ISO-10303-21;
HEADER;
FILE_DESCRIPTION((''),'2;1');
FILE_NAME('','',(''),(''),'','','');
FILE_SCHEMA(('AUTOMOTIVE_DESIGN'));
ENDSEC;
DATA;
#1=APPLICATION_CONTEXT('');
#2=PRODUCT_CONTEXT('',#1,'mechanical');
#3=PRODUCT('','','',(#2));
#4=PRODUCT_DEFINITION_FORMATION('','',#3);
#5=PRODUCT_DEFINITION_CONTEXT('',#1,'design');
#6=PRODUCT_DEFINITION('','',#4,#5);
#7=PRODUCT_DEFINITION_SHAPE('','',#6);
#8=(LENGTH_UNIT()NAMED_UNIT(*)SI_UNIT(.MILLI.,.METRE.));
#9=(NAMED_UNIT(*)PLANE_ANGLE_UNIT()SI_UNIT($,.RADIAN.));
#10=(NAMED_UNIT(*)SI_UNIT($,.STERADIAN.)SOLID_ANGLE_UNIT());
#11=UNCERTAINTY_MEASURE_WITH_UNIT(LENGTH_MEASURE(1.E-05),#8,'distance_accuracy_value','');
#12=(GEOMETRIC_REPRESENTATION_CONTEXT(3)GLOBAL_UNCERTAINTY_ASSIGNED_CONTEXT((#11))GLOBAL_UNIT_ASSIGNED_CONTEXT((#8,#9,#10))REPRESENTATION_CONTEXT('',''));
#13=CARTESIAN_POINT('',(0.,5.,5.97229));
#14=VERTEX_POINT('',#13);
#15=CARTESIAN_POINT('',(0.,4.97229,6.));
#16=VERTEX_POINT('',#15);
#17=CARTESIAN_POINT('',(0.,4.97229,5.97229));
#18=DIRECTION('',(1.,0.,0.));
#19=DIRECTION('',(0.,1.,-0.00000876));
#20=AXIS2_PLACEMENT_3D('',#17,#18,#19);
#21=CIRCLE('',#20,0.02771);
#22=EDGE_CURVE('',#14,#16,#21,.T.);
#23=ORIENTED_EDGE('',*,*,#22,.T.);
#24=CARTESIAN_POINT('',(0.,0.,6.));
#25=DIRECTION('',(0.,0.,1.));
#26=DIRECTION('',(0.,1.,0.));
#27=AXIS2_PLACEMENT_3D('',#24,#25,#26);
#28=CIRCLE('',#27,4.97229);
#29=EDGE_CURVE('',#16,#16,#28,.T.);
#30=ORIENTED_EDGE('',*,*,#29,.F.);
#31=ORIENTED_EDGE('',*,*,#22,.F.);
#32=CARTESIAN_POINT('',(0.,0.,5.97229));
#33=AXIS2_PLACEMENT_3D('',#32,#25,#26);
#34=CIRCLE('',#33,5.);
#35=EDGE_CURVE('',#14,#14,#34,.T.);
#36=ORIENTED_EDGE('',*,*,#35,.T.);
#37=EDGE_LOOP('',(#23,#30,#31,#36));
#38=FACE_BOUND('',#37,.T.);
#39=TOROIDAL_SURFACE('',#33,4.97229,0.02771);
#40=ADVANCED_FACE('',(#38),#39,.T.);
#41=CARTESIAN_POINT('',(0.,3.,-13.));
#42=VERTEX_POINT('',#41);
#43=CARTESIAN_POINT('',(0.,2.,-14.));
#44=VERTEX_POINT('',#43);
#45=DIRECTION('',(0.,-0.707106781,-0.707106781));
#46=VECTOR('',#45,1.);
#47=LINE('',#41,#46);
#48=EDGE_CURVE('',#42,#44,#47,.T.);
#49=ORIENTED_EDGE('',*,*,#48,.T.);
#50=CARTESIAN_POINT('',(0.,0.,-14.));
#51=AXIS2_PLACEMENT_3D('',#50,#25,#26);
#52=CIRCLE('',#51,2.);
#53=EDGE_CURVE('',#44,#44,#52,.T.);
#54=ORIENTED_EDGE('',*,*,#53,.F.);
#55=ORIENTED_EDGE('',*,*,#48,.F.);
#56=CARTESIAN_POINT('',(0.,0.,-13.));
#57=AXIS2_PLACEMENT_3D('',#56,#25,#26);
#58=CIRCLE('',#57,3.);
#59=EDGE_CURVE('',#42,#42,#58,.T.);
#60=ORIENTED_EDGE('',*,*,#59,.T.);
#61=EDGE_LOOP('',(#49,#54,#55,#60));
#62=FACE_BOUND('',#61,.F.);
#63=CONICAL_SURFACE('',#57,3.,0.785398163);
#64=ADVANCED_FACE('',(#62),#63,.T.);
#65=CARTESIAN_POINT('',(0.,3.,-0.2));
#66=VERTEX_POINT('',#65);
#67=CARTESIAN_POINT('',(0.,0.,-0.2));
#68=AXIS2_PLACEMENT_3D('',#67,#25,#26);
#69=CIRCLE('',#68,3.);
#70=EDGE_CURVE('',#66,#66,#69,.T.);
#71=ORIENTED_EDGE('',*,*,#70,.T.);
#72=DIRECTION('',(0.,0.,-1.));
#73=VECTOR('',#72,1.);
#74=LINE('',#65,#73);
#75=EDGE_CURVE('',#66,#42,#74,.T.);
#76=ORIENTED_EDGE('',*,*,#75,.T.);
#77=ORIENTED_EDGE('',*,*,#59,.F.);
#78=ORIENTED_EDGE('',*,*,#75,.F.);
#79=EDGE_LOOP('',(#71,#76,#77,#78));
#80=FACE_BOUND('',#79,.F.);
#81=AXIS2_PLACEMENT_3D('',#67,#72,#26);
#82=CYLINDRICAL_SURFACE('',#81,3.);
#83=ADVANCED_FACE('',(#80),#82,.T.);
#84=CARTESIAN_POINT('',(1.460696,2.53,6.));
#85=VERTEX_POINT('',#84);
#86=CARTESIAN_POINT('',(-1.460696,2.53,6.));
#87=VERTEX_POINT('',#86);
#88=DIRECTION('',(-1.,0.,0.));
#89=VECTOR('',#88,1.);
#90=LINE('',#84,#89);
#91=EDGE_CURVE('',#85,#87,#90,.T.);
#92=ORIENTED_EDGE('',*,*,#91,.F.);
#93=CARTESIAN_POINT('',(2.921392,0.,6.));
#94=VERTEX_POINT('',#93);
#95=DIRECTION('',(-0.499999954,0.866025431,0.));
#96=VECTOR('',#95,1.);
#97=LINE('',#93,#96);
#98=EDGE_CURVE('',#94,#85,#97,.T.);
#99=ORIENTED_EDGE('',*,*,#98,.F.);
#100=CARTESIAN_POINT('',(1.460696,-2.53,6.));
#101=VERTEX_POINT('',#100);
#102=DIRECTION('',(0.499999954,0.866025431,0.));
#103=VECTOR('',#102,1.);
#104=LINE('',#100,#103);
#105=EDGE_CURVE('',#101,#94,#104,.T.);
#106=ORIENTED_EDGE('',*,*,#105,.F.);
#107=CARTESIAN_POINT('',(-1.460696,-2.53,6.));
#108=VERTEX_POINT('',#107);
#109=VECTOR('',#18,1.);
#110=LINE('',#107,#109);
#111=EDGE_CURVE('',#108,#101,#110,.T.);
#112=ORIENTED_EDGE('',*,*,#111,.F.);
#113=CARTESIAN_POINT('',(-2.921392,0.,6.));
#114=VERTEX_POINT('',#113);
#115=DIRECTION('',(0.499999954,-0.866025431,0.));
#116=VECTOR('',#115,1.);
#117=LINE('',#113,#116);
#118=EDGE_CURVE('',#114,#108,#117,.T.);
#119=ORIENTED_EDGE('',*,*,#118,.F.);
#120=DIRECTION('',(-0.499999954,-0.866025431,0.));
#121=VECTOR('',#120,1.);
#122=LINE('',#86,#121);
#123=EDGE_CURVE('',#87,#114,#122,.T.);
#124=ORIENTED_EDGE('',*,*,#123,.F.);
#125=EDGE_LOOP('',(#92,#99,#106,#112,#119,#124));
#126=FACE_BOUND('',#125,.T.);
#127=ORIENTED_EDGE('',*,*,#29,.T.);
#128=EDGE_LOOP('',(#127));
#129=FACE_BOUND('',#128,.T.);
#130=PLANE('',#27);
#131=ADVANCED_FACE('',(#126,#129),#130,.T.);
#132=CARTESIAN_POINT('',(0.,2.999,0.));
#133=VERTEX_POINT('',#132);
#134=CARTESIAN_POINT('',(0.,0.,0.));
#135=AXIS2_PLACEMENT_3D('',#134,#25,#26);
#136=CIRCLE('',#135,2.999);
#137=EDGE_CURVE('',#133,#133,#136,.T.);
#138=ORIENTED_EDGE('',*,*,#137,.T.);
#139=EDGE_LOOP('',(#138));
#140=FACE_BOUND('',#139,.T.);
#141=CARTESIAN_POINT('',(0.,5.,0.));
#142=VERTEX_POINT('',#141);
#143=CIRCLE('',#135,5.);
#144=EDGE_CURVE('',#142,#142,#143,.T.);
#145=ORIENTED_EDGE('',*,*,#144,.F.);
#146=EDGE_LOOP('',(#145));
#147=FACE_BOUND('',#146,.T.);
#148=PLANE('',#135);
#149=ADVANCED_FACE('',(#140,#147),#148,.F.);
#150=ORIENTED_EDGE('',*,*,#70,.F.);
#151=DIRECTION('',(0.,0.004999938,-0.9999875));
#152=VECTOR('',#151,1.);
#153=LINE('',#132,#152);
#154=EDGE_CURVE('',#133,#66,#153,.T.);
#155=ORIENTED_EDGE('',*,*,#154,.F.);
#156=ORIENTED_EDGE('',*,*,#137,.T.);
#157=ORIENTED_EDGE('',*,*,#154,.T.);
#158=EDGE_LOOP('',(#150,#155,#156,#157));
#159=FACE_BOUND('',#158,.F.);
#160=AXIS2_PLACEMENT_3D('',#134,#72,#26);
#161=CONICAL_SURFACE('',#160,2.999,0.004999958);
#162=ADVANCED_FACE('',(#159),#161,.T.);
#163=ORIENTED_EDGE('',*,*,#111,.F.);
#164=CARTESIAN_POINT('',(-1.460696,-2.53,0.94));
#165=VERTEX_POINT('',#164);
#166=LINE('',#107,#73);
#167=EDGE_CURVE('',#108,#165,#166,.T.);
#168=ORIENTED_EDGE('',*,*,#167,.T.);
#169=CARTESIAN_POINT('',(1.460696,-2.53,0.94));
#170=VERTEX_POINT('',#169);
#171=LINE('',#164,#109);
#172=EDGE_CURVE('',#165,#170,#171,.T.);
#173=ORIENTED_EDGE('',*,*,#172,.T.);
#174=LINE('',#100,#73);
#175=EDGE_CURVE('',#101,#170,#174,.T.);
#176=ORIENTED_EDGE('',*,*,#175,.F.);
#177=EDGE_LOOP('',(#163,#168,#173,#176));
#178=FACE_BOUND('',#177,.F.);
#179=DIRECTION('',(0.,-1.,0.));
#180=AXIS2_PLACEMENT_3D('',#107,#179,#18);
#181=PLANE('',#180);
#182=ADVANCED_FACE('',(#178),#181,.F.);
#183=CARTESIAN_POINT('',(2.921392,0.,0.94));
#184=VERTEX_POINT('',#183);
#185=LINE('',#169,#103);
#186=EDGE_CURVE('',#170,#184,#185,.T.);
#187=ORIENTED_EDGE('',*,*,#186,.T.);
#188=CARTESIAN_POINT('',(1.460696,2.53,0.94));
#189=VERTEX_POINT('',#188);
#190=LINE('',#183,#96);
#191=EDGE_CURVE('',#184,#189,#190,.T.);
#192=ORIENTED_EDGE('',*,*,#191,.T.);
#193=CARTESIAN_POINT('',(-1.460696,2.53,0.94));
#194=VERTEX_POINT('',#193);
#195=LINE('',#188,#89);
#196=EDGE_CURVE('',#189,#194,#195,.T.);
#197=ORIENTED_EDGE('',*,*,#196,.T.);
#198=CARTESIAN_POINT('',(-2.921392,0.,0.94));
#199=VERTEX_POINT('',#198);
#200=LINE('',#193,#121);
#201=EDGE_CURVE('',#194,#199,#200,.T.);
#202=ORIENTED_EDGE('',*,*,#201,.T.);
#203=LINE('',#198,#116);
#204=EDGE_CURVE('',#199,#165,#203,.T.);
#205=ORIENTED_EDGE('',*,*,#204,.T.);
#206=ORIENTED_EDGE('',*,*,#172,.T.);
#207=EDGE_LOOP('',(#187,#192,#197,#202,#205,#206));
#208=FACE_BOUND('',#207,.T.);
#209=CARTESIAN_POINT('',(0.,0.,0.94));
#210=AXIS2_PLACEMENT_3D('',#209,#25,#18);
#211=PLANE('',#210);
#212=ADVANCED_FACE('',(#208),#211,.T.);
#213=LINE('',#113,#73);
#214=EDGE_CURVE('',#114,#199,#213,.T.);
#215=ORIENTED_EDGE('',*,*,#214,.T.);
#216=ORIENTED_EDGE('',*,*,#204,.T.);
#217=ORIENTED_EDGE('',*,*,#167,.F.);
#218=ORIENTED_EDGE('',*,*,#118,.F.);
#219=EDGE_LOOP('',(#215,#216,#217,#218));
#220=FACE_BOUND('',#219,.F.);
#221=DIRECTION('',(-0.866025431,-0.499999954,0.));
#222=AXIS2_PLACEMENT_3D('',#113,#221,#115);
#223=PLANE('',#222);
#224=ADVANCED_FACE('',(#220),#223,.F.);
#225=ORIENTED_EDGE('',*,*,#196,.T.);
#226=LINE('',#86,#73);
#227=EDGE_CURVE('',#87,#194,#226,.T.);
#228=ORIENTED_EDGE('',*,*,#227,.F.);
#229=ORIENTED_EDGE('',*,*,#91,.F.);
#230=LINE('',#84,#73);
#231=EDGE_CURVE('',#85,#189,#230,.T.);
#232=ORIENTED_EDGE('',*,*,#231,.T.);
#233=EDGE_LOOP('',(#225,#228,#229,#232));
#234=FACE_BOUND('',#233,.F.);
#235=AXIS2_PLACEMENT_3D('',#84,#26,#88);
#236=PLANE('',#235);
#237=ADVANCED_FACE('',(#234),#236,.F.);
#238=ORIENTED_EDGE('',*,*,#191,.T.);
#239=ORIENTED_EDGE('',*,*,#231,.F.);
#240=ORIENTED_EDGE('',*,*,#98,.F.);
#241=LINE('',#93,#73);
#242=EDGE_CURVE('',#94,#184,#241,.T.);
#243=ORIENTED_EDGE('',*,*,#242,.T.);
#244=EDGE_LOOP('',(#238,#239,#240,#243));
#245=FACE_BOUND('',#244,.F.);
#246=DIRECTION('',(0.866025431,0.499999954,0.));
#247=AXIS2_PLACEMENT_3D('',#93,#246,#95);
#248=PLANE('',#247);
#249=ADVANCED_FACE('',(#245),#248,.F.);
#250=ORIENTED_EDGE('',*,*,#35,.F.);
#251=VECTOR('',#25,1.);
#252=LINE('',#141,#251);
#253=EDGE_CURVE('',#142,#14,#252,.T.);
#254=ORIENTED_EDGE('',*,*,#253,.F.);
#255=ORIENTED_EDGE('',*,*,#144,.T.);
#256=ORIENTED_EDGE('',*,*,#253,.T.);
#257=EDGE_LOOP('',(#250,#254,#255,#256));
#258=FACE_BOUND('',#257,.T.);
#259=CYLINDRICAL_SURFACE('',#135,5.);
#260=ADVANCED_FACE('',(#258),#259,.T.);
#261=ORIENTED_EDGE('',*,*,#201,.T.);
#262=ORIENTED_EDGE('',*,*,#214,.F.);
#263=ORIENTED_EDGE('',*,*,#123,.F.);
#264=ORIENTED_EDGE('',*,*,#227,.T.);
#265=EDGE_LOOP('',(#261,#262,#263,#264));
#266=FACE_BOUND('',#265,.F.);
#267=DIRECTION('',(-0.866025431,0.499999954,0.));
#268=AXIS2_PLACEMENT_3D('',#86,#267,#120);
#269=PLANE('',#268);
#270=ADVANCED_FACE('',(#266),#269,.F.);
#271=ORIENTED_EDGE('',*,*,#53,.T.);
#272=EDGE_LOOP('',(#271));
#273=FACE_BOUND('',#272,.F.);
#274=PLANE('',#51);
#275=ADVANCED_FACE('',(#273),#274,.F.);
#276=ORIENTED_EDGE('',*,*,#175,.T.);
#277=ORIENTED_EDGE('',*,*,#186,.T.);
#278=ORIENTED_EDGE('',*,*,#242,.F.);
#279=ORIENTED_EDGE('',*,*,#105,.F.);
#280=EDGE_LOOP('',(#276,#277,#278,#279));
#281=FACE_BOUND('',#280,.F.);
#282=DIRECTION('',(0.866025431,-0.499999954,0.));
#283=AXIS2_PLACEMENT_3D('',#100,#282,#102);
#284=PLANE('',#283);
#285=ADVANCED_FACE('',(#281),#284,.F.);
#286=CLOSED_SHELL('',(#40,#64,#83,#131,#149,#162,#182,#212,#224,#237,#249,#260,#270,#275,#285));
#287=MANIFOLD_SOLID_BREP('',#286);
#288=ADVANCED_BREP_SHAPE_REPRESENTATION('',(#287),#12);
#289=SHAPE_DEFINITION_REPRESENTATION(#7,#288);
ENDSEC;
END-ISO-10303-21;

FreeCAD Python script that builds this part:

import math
import FreeCAD as App
import Part
import Sketcher
Q = App.Units.Quantity


def add_polygon(sketch, points):
    """Adds a closed chain of lines whose ends are joined by coincident constraints."""
    first, n = sketch.GeometryCount, len(points)
    for a, b in zip(points, points[1:] + points[:1]):
        sketch.addGeometry(Part.LineSegment(App.Vector(*a, 0), App.Vector(*b, 0)), False)
    for i in range(n):
        sketch.addConstraint(Sketcher.Constraint("Coincident", first + i, 2, first + (i + 1) % n, 1))

doc = App.newDocument("Part")
body = doc.addObject("PartDesign::Body", "Body")

# Sketch on YZ plane
sketch1 = doc.addObject("Sketcher::SketchObject", "Sketch")
body.addObject(sketch1)
sketch1.AttachmentSupport = (doc.YZ_Plane, [""])
sketch1.MapMode = "FlatFace"
sketch1.addGeometry([
    Part.LineSegment(App.Vector(2.999, 0, 0), App.Vector(5, 0, 0)),  # 0
    Part.LineSegment(App.Vector(5, 0, 0), App.Vector(5, 5.972, 0)),  # 1
    Part.ArcOfCircle(Part.Circle(App.Vector(4.972, 5.972, 0), App.Vector(0, 0, 1), 0.028), math.radians(0), math.radians(90)),  # 2
    Part.LineSegment(App.Vector(4.972, 6, 0), App.Vector(0, 6, 0)),  # 3
    Part.LineSegment(App.Vector(0, 6, 0), App.Vector(0, -14, 0)),  # 4
    Part.LineSegment(App.Vector(0, -14, 0), App.Vector(2, -14, 0)),  # 5
    Part.LineSegment(App.Vector(2, -14, 0), App.Vector(3, -13, 0)),  # 6
    Part.LineSegment(App.Vector(3, -13, 0), App.Vector(3, -0.2, 0)),  # 7
    Part.LineSegment(App.Vector(3, -0.2, 0), App.Vector(2.999, 0, 0)),  # 8
], False)
sketch1.addConstraint([
    Sketcher.Constraint("Coincident", 0, 2, 1, 1),
    Sketcher.Constraint("Coincident", 1, 2, 2, 1),
    Sketcher.Constraint("Coincident", 2, 2, 3, 1),
    Sketcher.Constraint("Coincident", 3, 2, 4, 1),
    Sketcher.Constraint("Coincident", 4, 2, 5, 1),
    Sketcher.Constraint("Coincident", 5, 2, 6, 1),
    Sketcher.Constraint("Coincident", 6, 2, 7, 1),
    Sketcher.Constraint("Coincident", 7, 2, 8, 1),
    Sketcher.Constraint("Coincident", 8, 2, 0, 1),
    Sketcher.Constraint("Horizontal", 0),
    Sketcher.Constraint("Vertical", 1),
    Sketcher.Constraint("Horizontal", 3),
    Sketcher.Constraint("Vertical", 4),
    Sketcher.Constraint("Horizontal", 5),
    Sketcher.Constraint("Vertical", 7),
    Sketcher.Constraint("PointOnObject", 0, 2, -1),
    Sketcher.Constraint("PointOnObject", 3, 2, -2),
    Sketcher.Constraint("Horizontal", 2, 3, 1, 2),
    Sketcher.Constraint("DistanceX", 5, 1, 5, 2, 2.0),
    Sketcher.Constraint("DistanceY", 4, 2, 4, 1, 20.0),
    Sketcher.Constraint("Angle", 6, Q("45 deg")),
    Sketcher.Constraint("DistanceY", 7, 1, 7, 2, 12.8),
    Sketcher.Constraint("DistanceX", -1, 1, 0, 2, 5.0),
    Sketcher.Constraint("DistanceY", -1, 1, 2, 2, 6.0),
    Sketcher.Constraint("DistanceX", -1, 1, 6, 2, 3.0),
    Sketcher.Constraint("DistanceX", 0, 1, 0, 2, 2.001),
    Sketcher.Constraint("Radius", 2, 0.02771),
    Sketcher.Constraint("DistanceX", 3, 2, 3, 1, 4.97229),
])
revolution = doc.addObject("PartDesign::Revolution", "Revolution")
body.addObject(revolution)
revolution.Profile = sketch1
revolution.ReferenceAxis = (sketch1, ["V_Axis"])
revolution.Angle = 360

# Sketch on XY plane
sketch2 = doc.addObject("Sketcher::SketchObject", "Sketch001")
body.addObject(sketch2)
sketch2.AttachmentSupport = (doc.XY_Plane, [""])
sketch2.MapMode = "FlatFace"
sketch2.AttachmentOffset = App.Placement(App.Vector(0, 0, 6), App.Rotation())
add_polygon(sketch2, [(2.9, 0), (1.5, 2.5), (-1.5, 2.5), (-2.9, 0), (-1.5, -2.5), (1.5, -2.5)])  # lines 0-5
sketch2.addConstraint([
    Sketcher.Constraint("Horizontal", 1),
    Sketcher.Constraint("Horizontal", 4),
    Sketcher.Constraint("Symmetric", 0, 2, 3, 2, -1, 1),
    Sketcher.Constraint("Symmetric", 2, 2, 5, 2, -1, 1),
    Sketcher.Constraint("PointOnObject", 2, 2, -1),
    Sketcher.Constraint("Parallel", 2, 5),
    Sketcher.Constraint("Vertical", 1, 2, 3, 2),
    Sketcher.Constraint("Angle", 0, Q("119.999997 deg")),
    Sketcher.Constraint("DistanceY", -1, 1, 0, 2, 2.53),
    Sketcher.Constraint("DistanceX", 1, 2, 1, 1, 2.921392),
])
pocket1 = doc.addObject("PartDesign::Pocket", "Pocket")
body.addObject(pocket1)
pocket1.Profile = sketch2
pocket1.Length = 5.06

doc.recompute()
